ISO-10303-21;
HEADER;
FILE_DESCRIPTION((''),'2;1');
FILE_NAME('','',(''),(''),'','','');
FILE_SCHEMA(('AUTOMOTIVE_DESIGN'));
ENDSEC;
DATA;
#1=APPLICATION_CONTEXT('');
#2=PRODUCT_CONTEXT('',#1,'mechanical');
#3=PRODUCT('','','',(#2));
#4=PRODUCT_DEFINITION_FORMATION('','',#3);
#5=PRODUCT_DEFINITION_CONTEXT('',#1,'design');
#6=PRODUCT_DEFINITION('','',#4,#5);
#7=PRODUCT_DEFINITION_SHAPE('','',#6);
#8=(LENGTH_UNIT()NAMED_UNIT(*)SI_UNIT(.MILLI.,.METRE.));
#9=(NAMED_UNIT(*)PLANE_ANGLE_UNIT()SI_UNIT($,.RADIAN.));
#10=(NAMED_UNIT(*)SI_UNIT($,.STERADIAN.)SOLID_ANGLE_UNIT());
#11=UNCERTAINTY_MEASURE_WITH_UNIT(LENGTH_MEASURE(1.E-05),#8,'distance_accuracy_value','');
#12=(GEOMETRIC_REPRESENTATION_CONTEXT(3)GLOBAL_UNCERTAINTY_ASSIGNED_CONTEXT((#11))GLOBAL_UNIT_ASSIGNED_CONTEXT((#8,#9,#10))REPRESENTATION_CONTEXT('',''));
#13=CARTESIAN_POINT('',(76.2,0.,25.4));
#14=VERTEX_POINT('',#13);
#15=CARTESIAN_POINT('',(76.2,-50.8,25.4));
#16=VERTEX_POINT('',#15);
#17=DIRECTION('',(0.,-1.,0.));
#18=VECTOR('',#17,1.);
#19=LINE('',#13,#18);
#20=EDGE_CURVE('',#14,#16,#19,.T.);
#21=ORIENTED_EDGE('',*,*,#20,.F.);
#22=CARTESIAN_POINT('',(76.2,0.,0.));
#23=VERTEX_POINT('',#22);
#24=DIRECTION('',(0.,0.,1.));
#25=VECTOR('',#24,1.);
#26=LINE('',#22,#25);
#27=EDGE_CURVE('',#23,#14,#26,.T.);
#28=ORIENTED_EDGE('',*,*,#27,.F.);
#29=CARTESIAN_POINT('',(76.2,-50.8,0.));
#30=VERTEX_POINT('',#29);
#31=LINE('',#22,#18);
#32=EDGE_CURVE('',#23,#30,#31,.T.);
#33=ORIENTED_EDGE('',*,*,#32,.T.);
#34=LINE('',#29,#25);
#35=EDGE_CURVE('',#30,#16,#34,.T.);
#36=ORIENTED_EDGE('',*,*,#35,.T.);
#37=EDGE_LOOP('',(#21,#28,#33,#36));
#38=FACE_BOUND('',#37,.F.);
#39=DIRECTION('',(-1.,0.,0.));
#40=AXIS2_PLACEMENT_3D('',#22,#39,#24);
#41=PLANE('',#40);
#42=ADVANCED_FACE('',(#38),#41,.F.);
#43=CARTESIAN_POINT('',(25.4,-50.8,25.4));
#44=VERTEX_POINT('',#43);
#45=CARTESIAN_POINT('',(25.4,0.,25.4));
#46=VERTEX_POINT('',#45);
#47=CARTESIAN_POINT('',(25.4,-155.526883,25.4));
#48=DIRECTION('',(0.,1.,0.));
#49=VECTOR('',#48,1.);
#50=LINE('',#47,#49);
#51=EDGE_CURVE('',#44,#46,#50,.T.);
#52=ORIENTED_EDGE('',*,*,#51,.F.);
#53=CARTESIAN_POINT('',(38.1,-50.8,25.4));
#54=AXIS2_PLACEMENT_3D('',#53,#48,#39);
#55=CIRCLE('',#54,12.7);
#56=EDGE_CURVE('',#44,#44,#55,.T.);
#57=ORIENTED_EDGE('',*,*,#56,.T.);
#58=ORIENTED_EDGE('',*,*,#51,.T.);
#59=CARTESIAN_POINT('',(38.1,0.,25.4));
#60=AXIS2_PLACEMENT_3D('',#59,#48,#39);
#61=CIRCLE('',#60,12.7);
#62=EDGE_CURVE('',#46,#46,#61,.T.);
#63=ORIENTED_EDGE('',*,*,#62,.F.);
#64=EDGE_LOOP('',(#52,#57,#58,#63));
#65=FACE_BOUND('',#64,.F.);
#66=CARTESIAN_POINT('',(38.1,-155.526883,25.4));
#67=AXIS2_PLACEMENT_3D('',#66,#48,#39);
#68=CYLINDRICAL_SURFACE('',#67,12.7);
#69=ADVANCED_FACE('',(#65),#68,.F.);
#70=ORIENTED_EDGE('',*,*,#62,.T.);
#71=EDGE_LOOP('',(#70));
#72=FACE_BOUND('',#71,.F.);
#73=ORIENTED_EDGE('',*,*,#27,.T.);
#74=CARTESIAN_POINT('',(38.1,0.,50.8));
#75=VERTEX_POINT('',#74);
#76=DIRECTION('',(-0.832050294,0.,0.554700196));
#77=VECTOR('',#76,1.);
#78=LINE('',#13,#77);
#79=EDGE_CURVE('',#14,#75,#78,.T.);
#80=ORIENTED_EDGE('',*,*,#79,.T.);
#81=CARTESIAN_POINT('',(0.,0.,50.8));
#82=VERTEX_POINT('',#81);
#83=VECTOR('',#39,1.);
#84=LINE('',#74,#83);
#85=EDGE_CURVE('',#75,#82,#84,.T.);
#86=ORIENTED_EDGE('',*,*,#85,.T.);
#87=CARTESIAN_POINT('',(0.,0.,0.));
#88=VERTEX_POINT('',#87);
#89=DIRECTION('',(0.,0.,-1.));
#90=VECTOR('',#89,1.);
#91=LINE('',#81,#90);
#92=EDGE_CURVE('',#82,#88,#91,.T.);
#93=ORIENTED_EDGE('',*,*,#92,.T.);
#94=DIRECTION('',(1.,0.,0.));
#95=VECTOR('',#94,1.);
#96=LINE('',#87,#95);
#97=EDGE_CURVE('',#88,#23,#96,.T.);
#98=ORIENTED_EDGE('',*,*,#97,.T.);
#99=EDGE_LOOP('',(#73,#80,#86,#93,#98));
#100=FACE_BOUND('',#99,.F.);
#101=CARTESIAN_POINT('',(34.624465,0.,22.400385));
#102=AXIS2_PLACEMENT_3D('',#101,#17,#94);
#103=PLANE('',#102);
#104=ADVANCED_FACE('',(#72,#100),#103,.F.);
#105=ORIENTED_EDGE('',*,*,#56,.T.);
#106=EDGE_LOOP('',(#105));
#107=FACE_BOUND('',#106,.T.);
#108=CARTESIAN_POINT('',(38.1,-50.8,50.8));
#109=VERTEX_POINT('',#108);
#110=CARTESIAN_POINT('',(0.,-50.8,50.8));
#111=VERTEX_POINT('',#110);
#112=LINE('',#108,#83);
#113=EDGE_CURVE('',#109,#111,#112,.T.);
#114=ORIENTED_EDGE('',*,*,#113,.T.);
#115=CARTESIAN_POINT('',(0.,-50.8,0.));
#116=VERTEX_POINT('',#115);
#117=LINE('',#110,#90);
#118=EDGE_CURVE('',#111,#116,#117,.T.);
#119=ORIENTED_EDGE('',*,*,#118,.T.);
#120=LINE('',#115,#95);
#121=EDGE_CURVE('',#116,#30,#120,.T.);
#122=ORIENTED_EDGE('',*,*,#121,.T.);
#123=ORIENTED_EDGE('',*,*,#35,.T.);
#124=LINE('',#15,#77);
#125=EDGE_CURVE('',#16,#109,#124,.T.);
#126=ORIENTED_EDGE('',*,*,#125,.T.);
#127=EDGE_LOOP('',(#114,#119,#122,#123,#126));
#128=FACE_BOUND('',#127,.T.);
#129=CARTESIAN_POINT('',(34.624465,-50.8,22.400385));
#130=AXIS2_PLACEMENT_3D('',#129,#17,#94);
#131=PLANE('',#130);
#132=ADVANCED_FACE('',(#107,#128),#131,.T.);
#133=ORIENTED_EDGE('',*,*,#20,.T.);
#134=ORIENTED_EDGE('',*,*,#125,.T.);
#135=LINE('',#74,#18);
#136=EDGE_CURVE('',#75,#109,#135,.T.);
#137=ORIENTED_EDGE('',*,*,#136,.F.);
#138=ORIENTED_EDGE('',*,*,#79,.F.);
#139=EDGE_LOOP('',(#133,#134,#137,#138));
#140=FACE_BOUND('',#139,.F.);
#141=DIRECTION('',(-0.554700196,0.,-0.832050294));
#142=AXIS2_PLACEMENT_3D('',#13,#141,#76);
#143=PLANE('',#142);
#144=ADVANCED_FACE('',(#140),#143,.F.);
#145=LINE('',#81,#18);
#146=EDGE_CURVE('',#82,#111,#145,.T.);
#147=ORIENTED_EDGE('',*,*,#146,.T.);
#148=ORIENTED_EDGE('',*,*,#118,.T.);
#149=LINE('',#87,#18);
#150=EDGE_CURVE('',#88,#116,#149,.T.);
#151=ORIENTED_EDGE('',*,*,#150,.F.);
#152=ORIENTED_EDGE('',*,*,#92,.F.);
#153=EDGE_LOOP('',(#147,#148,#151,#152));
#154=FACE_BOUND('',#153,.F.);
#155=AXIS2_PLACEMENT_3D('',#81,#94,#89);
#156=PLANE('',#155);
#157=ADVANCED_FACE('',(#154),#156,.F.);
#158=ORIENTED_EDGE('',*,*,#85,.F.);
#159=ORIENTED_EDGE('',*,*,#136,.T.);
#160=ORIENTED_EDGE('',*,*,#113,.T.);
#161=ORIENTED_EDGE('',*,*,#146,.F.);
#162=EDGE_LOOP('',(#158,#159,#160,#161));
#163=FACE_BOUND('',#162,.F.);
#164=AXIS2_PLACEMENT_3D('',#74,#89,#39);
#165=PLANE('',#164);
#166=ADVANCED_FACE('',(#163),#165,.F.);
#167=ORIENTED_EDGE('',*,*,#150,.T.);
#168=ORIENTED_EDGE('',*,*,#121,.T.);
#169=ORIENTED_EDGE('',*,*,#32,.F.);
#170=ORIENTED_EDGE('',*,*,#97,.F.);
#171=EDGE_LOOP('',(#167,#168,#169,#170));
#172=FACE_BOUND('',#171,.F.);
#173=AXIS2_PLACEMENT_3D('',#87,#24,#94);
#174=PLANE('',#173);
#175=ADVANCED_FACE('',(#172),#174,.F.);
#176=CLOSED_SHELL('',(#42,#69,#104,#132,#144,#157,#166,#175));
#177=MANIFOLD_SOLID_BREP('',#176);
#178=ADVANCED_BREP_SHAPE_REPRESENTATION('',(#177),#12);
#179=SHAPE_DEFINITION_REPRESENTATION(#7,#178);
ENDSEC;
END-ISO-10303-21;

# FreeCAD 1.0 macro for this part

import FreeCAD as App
import Part
import Sketcher

V = App.Vector
Q = App.Units.Quantity


def add_polygon(sketch, points):
    """Adds a closed chain of lines whose ends are joined by coincident constraints."""
    first, n = sketch.GeometryCount, len(points)
    for a, b in zip(points, points[1:] + points[:1]):
        sketch.addGeometry(Part.LineSegment(App.Vector(*a, 0), App.Vector(*b, 0)), False)
    for i in range(n):
        sketch.addConstraint(Sketcher.Constraint("Coincident", first + i, 2, first + (i + 1) % n, 1))

doc = App.newDocument("Part")
params = doc.addObject("Spreadsheet::Sheet", "Params")
for row, (alias, value) in enumerate([
    ("sketch1_width", "3 in"),
    ("sketch1_height", "2 in"),
    ("sketch1_height2", "1 in"),
    ("sketch1_width2", "1.5 in"),
    ("pad1_length", "2 in"),
    ("sketch2_diameter", "1 in"),
    ("hole_diameter", "1 in"),
], start=1):
    params.set(f"A{row}", alias)
    params.set(f"B{row}", "=" + value)
    params.setAlias(f"B{row}", alias)

body = doc.addObject("PartDesign::Body", "Body")

# Sketch on XZ plane
sketch1 = body.newObject("Sketcher::SketchObject", "Sketch")
sketch1.AttachmentSupport = (doc.getObject("XZ_Plane"), [""])
sketch1.MapMode = "FlatFace"
add_polygon(sketch1, [(0, 51), (0, 0), (76, 0), (76, 25), (38, 51)])  # lines 0-4
sketch1.addConstraint(Sketcher.Constraint("Vertical", 0))
sketch1.addConstraint(Sketcher.Constraint("Horizontal", 1))
sketch1.addConstraint(Sketcher.Constraint("Vertical", 2))
sketch1.addConstraint(Sketcher.Constraint("Horizontal", 4))
sketch1.addConstraint(Sketcher.Constraint("Coincident", 0, 2, -1, 1))
sketch1.addConstraint(Sketcher.Constraint("DistanceX", 1, 1, 1, 2, Q("3 in")))
sketch1.addConstraint(Sketcher.Constraint("DistanceY", 0, 2, 0, 1, Q("2 in")))
sketch1.addConstraint(Sketcher.Constraint("DistanceY", 2, 1, 2, 2, Q("1 in")))
sketch1.addConstraint(Sketcher.Constraint("DistanceX", 4, 2, 4, 1, Q("1.5 in")))
sketch1.setExpression("Constraints[10]", "Params.sketch1_width")
sketch1.setExpression("Constraints[11]", "Params.sketch1_height")
sketch1.setExpression("Constraints[12]", "Params.sketch1_height2")
sketch1.setExpression("Constraints[13]", "Params.sketch1_width2")
pad1 = body.newObject("PartDesign::Pad", "Pad")
pad1.Profile = sketch1
pad1.setExpression("Length", "Params.pad1_length")

# Sketch on XZ plane
sketch2 = body.newObject("Sketcher::SketchObject", "Sketch001")
sketch2.AttachmentSupport = (doc.getObject("XZ_Plane"), [""])
sketch2.MapMode = "FlatFace"
sketch2.AttachmentOffset = App.Placement(V(0, 0, 2 * 25.4), App.Rotation())
sketch2.addGeometry(Part.Circle(V(38, 25, 0), V(0, 0, 1), 13), False)
sketch2.addConstraint(Sketcher.Constraint("Diameter", 0, Q("1 in")))
sketch2.addConstraint(Sketcher.Constraint("DistanceY", -1, 1, 0, 3, Q("1 in")))
sketch2.addConstraint(Sketcher.Constraint("DistanceX", -1, 1, 0, 3, Q("1.5 in")))
sketch2.setExpression("Constraints[0]", "Params.sketch2_diameter")
doc.recompute()
hole = body.newObject("PartDesign::Hole", "Hole")
hole.Profile = sketch2
hole.ThreadType = "None"
hole.setExpression("Diameter", "Params.hole_diameter")
hole.DepthType = "ThroughAll"

doc.recompute()
